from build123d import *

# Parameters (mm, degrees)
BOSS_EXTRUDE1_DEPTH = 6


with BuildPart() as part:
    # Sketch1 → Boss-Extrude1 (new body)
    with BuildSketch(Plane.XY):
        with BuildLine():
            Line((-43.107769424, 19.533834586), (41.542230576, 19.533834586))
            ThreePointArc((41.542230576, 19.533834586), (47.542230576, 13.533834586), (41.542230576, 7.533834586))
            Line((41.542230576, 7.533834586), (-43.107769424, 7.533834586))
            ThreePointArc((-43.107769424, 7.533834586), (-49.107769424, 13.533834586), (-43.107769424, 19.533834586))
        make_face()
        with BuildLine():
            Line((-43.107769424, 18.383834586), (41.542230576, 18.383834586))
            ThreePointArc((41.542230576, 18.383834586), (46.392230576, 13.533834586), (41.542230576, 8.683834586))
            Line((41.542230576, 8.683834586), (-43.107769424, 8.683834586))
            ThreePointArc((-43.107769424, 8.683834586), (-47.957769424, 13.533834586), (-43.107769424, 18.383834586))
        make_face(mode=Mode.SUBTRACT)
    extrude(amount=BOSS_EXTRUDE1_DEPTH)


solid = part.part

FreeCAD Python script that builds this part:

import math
import FreeCAD as App
import Part
import Sketcher

V = App.Vector

doc = App.newDocument("Part")
body = doc.addObject("PartDesign::Body", "Body")

# Sketch on XY plane
sketch1 = body.newObject("Sketcher::SketchObject", "Sketch")
sketch1.AttachmentSupport = (doc.getObject("XY_Plane"), [""])
sketch1.MapMode = "FlatFace"
sketch1.addGeometry([
    Part.LineSegment(V(41.5, 19.5, 0), V(-43.1, 19.5, 0)),  # 0
    Part.ArcOfCircle(Part.Circle(V(-43.1, 13.5, 0), V(0, 0, 1), 6), math.radians(90), math.radians(270)),  # 1
    Part.LineSegment(V(-43.1, 7.5, 0), V(41.5, 7.5, 0)),  # 2
    Part.ArcOfCircle(Part.Circle(V(41.5, 13.5, 0), V(0, 0, 1), 6), math.radians(-90), math.radians(90)),  # 3
    Part.LineSegment(V(-43.1, 18.4, 0), V(41.5, 18.4, 0)),  # 4
    Part.ArcOfCircle(Part.Circle(V(41.5, 13.5, 0), V(0, 0, 1), 4.8), math.radians(-90), math.radians(90)),  # 5
    Part.LineSegment(V(41.5, 8.7, 0), V(-43.1, 8.7, 0)),  # 6
    Part.ArcOfCircle(Part.Circle(V(-43.1, 13.5, 0), V(0, 0, 1), 4.8), math.radians(90), math.radians(270)),  # 7
], False)
sketch1.addConstraint([
    Sketcher.Constraint("Tangent", 0, 2, 1, 1),
    Sketcher.Constraint("Tangent", 1, 2, 2, 1),
    Sketcher.Constraint("Tangent", 2, 2, 3, 1),
    Sketcher.Constraint("Tangent", 3, 2, 0, 1),
    Sketcher.Constraint("Tangent", 4, 2, 5, 2),
    Sketcher.Constraint("Tangent", 5, 1, 6, 1),
    Sketcher.Constraint("Tangent", 6, 2, 7, 2),
    Sketcher.Constraint("Tangent", 7, 1, 4, 1),
    Sketcher.Constraint("Horizontal", 0),
    Sketcher.Constraint("Horizontal", 2),
    Sketcher.Constraint("Horizontal", 4),
    Sketcher.Constraint("Horizontal", 6),
    Sketcher.Constraint("Coincident", 5, 3, 3, 3),
    Sketcher.Constraint("Vertical", 7, 3, 0, 2),
    Sketcher.Constraint("Radius", 1, 6.0),
    Sketcher.Constraint("Radius", 5, 4.85),
    Sketcher.Constraint("DistanceX", 0, 2, 0, 1, 84.65),
    Sketcher.Constraint("DistanceX", 1, 3, -1, 1, 43.107769),
    Sketcher.Constraint("DistanceY", -1, 1, 1, 3, 13.533835),
])
pad1 = body.newObject("PartDesign::Pad", "Pad")
pad1.Profile = sketch1
pad1.Length = 6

doc.recompute()
